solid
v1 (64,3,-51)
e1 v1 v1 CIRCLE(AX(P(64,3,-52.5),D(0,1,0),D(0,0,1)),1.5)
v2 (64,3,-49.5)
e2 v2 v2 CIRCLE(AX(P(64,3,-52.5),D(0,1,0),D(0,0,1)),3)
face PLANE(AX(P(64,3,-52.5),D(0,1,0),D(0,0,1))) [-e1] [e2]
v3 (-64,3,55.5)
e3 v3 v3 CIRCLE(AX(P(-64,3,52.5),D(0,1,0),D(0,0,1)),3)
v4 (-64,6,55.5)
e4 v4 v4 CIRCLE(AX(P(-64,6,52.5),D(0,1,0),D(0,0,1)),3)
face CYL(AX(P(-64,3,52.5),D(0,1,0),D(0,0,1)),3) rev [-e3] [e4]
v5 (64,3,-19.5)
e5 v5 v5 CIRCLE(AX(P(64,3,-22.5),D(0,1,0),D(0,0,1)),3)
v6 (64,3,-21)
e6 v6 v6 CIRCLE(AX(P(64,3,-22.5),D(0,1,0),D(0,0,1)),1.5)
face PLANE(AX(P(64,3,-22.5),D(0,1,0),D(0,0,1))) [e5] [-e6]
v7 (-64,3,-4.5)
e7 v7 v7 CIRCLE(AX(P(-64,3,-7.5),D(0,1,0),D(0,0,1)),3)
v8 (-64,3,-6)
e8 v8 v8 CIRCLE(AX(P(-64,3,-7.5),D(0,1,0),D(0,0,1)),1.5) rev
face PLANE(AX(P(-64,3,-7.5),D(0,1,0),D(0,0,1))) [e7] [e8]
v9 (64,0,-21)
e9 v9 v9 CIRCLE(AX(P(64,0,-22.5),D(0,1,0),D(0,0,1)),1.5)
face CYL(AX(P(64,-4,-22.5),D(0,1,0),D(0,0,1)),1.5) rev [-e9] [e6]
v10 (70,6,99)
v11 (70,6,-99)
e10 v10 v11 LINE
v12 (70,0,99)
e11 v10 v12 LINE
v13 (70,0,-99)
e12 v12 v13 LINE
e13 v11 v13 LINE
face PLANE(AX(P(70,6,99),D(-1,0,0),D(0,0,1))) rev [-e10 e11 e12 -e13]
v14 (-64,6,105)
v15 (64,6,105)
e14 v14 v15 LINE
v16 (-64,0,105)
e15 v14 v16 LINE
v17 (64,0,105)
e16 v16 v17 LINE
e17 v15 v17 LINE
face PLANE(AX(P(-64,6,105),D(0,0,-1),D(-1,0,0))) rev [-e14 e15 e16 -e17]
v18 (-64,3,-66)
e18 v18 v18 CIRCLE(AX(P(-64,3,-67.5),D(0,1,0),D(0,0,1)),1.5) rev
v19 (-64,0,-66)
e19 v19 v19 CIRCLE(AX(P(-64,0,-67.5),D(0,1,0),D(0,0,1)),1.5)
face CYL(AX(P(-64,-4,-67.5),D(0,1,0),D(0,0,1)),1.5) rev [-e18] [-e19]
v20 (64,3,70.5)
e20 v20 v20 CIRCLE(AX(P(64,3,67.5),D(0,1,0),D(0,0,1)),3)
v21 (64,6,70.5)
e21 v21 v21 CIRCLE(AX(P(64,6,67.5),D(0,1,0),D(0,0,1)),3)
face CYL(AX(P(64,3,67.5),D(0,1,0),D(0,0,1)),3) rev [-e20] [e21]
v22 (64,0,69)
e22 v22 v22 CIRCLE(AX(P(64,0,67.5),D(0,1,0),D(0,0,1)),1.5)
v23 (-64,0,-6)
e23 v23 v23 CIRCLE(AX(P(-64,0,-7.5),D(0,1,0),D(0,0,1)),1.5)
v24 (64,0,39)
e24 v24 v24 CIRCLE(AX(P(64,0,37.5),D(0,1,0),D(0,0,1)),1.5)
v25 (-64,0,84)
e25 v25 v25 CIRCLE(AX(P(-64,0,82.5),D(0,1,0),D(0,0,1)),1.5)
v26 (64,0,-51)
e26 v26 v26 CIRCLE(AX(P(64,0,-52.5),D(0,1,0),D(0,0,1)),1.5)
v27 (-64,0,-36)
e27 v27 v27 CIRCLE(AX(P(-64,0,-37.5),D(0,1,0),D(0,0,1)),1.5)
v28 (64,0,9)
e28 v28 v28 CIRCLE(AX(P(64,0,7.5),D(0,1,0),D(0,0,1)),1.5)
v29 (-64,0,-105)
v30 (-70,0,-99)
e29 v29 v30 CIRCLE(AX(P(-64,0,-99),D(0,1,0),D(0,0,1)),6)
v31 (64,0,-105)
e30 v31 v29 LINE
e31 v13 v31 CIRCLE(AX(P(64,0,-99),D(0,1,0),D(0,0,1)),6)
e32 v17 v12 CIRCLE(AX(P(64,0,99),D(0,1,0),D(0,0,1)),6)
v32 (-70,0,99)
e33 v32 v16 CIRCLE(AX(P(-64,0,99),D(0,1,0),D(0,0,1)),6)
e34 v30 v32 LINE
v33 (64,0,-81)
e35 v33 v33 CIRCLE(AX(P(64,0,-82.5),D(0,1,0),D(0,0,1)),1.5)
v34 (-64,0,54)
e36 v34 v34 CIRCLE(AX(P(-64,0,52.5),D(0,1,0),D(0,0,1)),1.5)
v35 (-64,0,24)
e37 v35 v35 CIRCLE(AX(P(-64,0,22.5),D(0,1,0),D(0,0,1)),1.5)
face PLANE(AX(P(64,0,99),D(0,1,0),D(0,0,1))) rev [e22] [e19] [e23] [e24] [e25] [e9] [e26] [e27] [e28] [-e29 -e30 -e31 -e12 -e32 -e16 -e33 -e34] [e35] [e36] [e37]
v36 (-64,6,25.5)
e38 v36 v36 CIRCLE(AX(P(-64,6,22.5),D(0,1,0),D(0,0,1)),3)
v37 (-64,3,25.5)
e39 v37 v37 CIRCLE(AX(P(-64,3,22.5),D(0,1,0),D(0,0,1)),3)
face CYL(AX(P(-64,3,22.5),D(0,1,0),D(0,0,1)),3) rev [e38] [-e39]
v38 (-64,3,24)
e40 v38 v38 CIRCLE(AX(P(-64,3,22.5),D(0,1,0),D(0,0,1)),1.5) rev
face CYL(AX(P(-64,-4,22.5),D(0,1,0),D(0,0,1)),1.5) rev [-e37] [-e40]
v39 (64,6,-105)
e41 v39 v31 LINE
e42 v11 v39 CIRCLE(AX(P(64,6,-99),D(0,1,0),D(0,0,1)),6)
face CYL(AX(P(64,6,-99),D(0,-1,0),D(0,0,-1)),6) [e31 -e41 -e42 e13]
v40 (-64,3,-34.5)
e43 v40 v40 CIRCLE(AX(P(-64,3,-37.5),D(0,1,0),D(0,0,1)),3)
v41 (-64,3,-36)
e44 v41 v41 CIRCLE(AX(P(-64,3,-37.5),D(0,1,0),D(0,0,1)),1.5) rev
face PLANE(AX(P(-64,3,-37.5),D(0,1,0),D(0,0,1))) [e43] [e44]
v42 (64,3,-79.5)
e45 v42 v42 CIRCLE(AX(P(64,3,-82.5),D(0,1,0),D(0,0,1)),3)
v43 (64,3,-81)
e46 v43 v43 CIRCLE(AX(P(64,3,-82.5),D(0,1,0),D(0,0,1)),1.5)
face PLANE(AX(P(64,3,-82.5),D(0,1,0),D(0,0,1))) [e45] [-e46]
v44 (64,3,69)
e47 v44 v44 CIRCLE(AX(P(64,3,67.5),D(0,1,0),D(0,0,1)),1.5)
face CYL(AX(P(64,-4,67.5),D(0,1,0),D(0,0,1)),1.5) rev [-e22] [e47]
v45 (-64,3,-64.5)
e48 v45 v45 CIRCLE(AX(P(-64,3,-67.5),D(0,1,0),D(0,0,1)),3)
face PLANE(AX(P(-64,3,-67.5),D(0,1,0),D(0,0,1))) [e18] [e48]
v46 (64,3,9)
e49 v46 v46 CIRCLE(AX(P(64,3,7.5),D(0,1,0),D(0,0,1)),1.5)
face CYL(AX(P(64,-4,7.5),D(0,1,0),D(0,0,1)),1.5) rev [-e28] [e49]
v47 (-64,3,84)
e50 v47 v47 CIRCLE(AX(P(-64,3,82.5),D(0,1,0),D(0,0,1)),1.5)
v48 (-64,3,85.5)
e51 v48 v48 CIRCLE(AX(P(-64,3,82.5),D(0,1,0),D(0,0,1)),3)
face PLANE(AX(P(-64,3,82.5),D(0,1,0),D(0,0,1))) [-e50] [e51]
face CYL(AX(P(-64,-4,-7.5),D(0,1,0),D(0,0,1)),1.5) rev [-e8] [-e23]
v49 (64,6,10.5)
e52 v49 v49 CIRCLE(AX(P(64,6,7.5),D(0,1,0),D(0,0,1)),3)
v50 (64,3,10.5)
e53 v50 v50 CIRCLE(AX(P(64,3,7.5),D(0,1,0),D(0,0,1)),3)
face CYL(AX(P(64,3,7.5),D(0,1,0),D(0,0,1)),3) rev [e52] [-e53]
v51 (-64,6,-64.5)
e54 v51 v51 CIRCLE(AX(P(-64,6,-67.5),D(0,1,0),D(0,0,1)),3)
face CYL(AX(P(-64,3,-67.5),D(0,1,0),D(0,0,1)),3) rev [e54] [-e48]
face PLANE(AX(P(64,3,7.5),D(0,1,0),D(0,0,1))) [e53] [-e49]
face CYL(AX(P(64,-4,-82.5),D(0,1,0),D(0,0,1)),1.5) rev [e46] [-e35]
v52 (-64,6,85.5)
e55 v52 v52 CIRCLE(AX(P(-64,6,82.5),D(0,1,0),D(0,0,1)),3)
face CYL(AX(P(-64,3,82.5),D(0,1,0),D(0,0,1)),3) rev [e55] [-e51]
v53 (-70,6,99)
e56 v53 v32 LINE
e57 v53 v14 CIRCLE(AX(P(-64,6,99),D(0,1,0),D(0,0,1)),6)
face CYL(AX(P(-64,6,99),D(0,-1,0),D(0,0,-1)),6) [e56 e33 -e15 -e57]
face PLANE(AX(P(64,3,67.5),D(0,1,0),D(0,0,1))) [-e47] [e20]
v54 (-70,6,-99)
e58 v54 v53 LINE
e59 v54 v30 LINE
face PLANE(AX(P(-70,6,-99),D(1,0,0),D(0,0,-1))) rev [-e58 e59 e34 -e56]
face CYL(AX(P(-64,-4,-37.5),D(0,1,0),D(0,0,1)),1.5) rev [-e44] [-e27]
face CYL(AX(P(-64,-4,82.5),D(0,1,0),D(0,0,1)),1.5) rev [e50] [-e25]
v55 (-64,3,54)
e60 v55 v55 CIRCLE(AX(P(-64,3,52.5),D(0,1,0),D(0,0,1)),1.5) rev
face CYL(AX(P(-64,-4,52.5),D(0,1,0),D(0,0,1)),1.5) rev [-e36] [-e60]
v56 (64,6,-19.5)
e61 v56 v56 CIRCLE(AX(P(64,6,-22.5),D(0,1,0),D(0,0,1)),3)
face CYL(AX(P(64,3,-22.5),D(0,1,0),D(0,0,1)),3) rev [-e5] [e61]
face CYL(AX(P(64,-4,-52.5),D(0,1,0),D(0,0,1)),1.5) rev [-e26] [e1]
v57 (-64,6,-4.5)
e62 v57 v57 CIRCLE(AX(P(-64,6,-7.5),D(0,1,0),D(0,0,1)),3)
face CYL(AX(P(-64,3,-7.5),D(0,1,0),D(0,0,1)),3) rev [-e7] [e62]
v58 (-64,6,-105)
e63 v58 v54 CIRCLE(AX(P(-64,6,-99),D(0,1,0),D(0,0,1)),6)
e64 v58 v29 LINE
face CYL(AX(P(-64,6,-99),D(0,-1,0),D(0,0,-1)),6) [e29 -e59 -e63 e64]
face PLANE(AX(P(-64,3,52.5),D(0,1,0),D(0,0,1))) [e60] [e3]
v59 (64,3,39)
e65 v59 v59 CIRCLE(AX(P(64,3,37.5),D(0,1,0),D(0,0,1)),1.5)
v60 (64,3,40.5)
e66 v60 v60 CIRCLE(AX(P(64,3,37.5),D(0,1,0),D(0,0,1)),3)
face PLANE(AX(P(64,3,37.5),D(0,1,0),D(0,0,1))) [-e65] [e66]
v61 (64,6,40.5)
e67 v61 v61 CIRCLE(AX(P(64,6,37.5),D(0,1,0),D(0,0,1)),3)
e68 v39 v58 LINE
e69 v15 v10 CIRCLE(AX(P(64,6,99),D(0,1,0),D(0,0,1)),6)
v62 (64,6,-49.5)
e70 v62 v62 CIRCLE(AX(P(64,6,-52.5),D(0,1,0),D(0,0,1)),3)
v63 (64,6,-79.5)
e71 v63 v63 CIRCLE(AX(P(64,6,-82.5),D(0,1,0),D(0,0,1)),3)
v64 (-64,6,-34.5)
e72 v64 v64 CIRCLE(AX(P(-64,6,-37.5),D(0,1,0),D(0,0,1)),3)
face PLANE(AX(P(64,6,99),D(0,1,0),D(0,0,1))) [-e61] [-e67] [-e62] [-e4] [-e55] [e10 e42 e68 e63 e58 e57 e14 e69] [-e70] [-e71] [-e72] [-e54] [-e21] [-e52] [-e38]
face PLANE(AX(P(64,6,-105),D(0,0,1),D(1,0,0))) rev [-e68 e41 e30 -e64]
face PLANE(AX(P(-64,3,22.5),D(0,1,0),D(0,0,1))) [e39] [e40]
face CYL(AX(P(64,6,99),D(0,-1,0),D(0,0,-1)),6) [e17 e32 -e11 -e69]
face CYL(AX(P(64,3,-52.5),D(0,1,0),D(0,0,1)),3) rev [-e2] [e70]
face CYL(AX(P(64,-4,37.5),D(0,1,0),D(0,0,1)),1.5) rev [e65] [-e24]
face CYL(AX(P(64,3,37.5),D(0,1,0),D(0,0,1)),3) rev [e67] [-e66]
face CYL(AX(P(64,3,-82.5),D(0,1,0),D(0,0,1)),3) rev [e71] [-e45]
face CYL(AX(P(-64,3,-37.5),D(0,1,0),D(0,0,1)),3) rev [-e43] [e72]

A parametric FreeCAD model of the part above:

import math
import FreeCAD as App
import Part
import Sketcher
Q = App.Units.Quantity

doc = App.newDocument("Part")
body = doc.addObject("PartDesign::Body", "Body")

# Sketch on XZ plane
sketch1 = doc.addObject("Sketcher::SketchObject", "Sketch")
body.addObject(sketch1)
sketch1.AttachmentSupport = (doc.XZ_Plane, [""])
sketch1.MapMode = "FlatFace"
sketch1.addGeometry([
    Part.LineSegment(App.Vector(70, 99, 0), App.Vector(70, -99, 0)),  # 0
    Part.ArcOfCircle(Part.Circle(App.Vector(64, -99, 0), App.Vector(0, 0, 1), 6), math.radians(-90), math.radians(0)),  # 1
    Part.LineSegment(App.Vector(64, -105, 0), App.Vector(-64, -105, 0)),  # 2
    Part.ArcOfCircle(Part.Circle(App.Vector(-64, -99, 0), App.Vector(0, 0, 1), 6), math.radians(180), math.radians(270)),  # 3
    Part.LineSegment(App.Vector(-70, -99, 0), App.Vector(-70, 99, 0)),  # 4
    Part.ArcOfCircle(Part.Circle(App.Vector(-64, 99, 0), App.Vector(0, 0, 1), 6), math.radians(90), math.radians(180)),  # 5
    Part.LineSegment(App.Vector(-64, 105, 0), App.Vector(64, 105, 0)),  # 6
    Part.ArcOfCircle(Part.Circle(App.Vector(64, 99, 0), App.Vector(0, 0, 1), 6), math.radians(0), math.radians(90)),  # 7
], False)
sketch1.addConstraint([
    Sketcher.Constraint("Tangent", 0, 2, 1, 2),
    Sketcher.Constraint("Tangent", 1, 1, 2, 1),
    Sketcher.Constraint("Tangent", 2, 2, 3, 2),
    Sketcher.Constraint("Tangent", 3, 1, 4, 1),
    Sketcher.Constraint("Tangent", 4, 2, 5, 2),
    Sketcher.Constraint("Tangent", 5, 1, 6, 1),
    Sketcher.Constraint("Tangent", 6, 2, 7, 2),
    Sketcher.Constraint("Tangent", 7, 1, 0, 1),
    Sketcher.Constraint("Vertical", 0),
    Sketcher.Constraint("Horizontal", 2),
    Sketcher.Constraint("Vertical", 4),
    Sketcher.Constraint("Horizontal", 6),
    Sketcher.Constraint("Equal", 1, 3),
    Sketcher.Constraint("Equal", 3, 5),
    Sketcher.Constraint("Equal", 5, 7),
    Sketcher.Constraint("Symmetric", 1, 3, 5, 3, -1, 1),
    Sketcher.Constraint("Radius", 1, Q("6 mm")),
    Sketcher.Constraint("DistanceX", 2, 2, 2, 1, Q("128 mm")),
    Sketcher.Constraint("DistanceY", 0, 2, 0, 1, Q("198 mm")),
])
pad1 = doc.addObject("PartDesign::Pad", "Pad")
body.addObject(pad1)
pad1.Profile = sketch1
pad1.Length = 6
pad1.Reversed = True

# Sketch on XZ plane
sketch2 = doc.addObject("Sketcher::SketchObject", "Sketch001")
body.addObject(sketch2)
sketch2.AttachmentSupport = (doc.XZ_Plane, [""])
sketch2.MapMode = "FlatFace"
sketch2.AttachmentOffset = App.Placement(App.Vector(0, 0, -6), App.Rotation())
sketch2.addGeometry([
    Part.Circle(App.Vector(-64, 82.5, 0), App.Vector(0, 0, 1), 1.5),  # 0
    Part.Circle(App.Vector(-64, 52.5, 0), App.Vector(0, 0, 1), 1.5),  # 1
    Part.Circle(App.Vector(-64, 22.5, 0), App.Vector(0, 0, 1), 1.5),  # 2
    Part.Circle(App.Vector(-64, -7.5, 0), App.Vector(0, 0, 1), 1.5),  # 3
    Part.Circle(App.Vector(-64, -37.5, 0), App.Vector(0, 0, 1), 1.5),  # 4
    Part.Circle(App.Vector(-64, -67.5, 0), App.Vector(0, 0, 1), 1.5),  # 5
    Part.Circle(App.Vector(64, 67.5, 0), App.Vector(0, 0, 1), 1.5),  # 6
    Part.Circle(App.Vector(64, 37.5, 0), App.Vector(0, 0, 1), 1.5),  # 7
    Part.Circle(App.Vector(64, 7.5, 0), App.Vector(0, 0, 1), 1.5),  # 8
    Part.Circle(App.Vector(64, -22.5, 0), App.Vector(0, 0, 1), 1.5),  # 9
    Part.Circle(App.Vector(64, -52.5, 0), App.Vector(0, 0, 1), 1.5),  # 10
    Part.Circle(App.Vector(64, -82.5, 0), App.Vector(0, 0, 1), 1.5),  # 11
], False)
sketch2.addConstraint([
    Sketcher.Constraint("Equal", 0, 1),
    Sketcher.Constraint("Equal", 1, 2),
    Sketcher.Constraint("Equal", 2, 3),
    Sketcher.Constraint("Equal", 3, 4),
    Sketcher.Constraint("Equal", 4, 5),
    Sketcher.Constraint("Equal", 5, 6),
    Sketcher.Constraint("Equal", 6, 7),
    Sketcher.Constraint("Equal", 7, 8),
    Sketcher.Constraint("Equal", 8, 9),
    Sketcher.Constraint("Equal", 9, 10),
    Sketcher.Constraint("Equal", 10, 11),
    Sketcher.Constraint("Symmetric", 5, 3, 6, 3, -1, 1),
    Sketcher.Constraint("Symmetric", 4, 3, 7, 3, -1, 1),
    Sketcher.Constraint("Symmetric", 3, 3, 8, 3, -1, 1),
    Sketcher.Constraint("Symmetric", 2, 3, 9, 3, -1, 1),
    Sketcher.Constraint("Symmetric", 1, 3, 10, 3, -1, 1),
    Sketcher.Constraint("Symmetric", 0, 3, 11, 3, -1, 1),
    Sketcher.Constraint("Vertical", 0, 3, 1, 3),
    Sketcher.Constraint("Vertical", 1, 3, 2, 3),
    Sketcher.Constraint("Vertical", 2, 3, 3, 3),
    Sketcher.Constraint("Vertical", 3, 3, 4, 3),
    Sketcher.Constraint("Vertical", 4, 3, 5, 3),
    Sketcher.Constraint("Diameter", 0, Q("3 mm")),
    Sketcher.Constraint("DistanceX", 0, 3, -1, 1, Q("64 mm")),
    Sketcher.Constraint("DistanceY", 1, 3, 0, 3, Q("30 mm")),
    Sketcher.Constraint("DistanceY", 2, 3, 1, 3, Q("30 mm")),
    Sketcher.Constraint("DistanceY", 3, 3, 2, 3, Q("30 mm")),
    Sketcher.Constraint("DistanceY", 4, 3, 3, 3, Q("30 mm")),
    Sketcher.Constraint("DistanceY", 5, 3, 4, 3, Q("30 mm")),
    Sketcher.Constraint("DistanceY", 6, 3, 0, 3, Q("15 mm")),
])
pocket1 = doc.addObject("PartDesign::Pocket", "Pocket")
body.addObject(pocket1)
pocket1.Profile = sketch2
pocket1.Length = 10
pocket1.Reversed = True

# Sketch on XZ plane
sketch3 = doc.addObject("Sketcher::SketchObject", "Sketch002")
body.addObject(sketch3)
sketch3.AttachmentSupport = (doc.XZ_Plane, [""])
sketch3.MapMode = "FlatFace"
sketch3.AttachmentOffset = App.Placement(App.Vector(0, 0, -6), App.Rotation())
sketch3.addGeometry([
    Part.Circle(App.Vector(-64, 82.5, 0), App.Vector(0, 0, 1), 3),  # 0
    Part.Circle(App.Vector(-64, 82.5, 0), App.Vector(0, 0, 1), 1.5),  # 1
    Part.Circle(App.Vector(-64, 52.5, 0), App.Vector(0, 0, 1), 3),  # 2
    Part.Circle(App.Vector(-64, 22.5, 0), App.Vector(0, 0, 1), 3),  # 3
    Part.Circle(App.Vector(-64, -7.5, 0), App.Vector(0, 0, 1), 3),  # 4
    Part.Circle(App.Vector(-64, -37.5, 0), App.Vector(0, 0, 1), 3),  # 5
    Part.Circle(App.Vector(-64, -67.5, 0), App.Vector(0, 0, 1), 3),  # 6
    Part.Circle(App.Vector(64, 67.5, 0), App.Vector(0, 0, 1), 3),  # 7
    Part.Circle(App.Vector(64, 67.5, 0), App.Vector(0, 0, 1), 1.5),  # 8
    Part.Circle(App.Vector(64, 37.5, 0), App.Vector(0, 0, 1), 3),  # 9
    Part.Circle(App.Vector(64, 37.5, 0), App.Vector(0, 0, 1), 1.5),  # 10
    Part.Circle(App.Vector(64, 7.5, 0), App.Vector(0, 0, 1), 3),  # 11
    Part.Circle(App.Vector(64, 7.5, 0), App.Vector(0, 0, 1), 1.5),  # 12
    Part.Circle(App.Vector(64, -22.5, 0), App.Vector(0, 0, 1), 3),  # 13
    Part.Circle(App.Vector(64, -22.5, 0), App.Vector(0, 0, 1), 1.5),  # 14
    Part.Circle(App.Vector(64, -52.5, 0), App.Vector(0, 0, 1), 3),  # 15
    Part.Circle(App.Vector(64, -52.5, 0), App.Vector(0, 0, 1), 1.5),  # 16
    Part.Circle(App.Vector(64, -82.5, 0), App.Vector(0, 0, 1), 3),  # 17
    Part.Circle(App.Vector(64, -82.5, 0), App.Vector(0, 0, 1), 1.5),  # 18
], False)
sketch3.addConstraint([
    Sketcher.Constraint("Coincident", 1, 3, 0, 3),
    Sketcher.Constraint("Coincident", 8, 3, 7, 3),
    Sketcher.Constraint("Coincident", 10, 3, 9, 3),
    Sketcher.Constraint("Coincident", 12, 3, 11, 3),
    Sketcher.Constraint("Coincident", 14, 3, 13, 3),
    Sketcher.Constraint("Coincident", 16, 3, 15, 3),
    Sketcher.Constraint("Coincident", 18, 3, 17, 3),
    Sketcher.Constraint("Equal", 0, 2),
    Sketcher.Constraint("Equal", 2, 3),
    Sketcher.Constraint("Equal", 3, 4),
    Sketcher.Constraint("Equal", 4, 5),
    Sketcher.Constraint("Equal", 5, 6),
    Sketcher.Constraint("Equal", 6, 7),
    Sketcher.Constraint("Equal", 1, 8),
    Sketcher.Constraint("Equal", 7, 9),
    Sketcher.Constraint("Equal", 8, 10),
    Sketcher.Constraint("Equal", 9, 11),
    Sketcher.Constraint("Equal", 10, 12),
    Sketcher.Constraint("Equal", 11, 13),
    Sketcher.Constraint("Equal", 12, 14),
    Sketcher.Constraint("Equal", 13, 15),
    Sketcher.Constraint("Equal", 14, 16),
    Sketcher.Constraint("Equal", 15, 17),
    Sketcher.Constraint("Equal", 16, 18),
    Sketcher.Constraint("Symmetric", 6, 3, 7, 3, -1, 1),
    Sketcher.Constraint("Symmetric", 5, 3, 9, 3, -1, 1),
    Sketcher.Constraint("Symmetric", 4, 3, 11, 3, -1, 1),
    Sketcher.Constraint("Symmetric", 3, 3, 13, 3, -1, 1),
    Sketcher.Constraint("Symmetric", 2, 3, 15, 3, -1, 1),
    Sketcher.Constraint("Symmetric", 0, 3, 17, 3, -1, 1),
    Sketcher.Constraint("Vertical", 1, 3, 2, 3),
    Sketcher.Constraint("Vertical", 2, 3, 3, 3),
    Sketcher.Constraint("Vertical", 3, 3, 4, 3),
    Sketcher.Constraint("Vertical", 4, 3, 5, 3),
    Sketcher.Constraint("Vertical", 5, 3, 6, 3),
    Sketcher.Constraint("Diameter", 0, Q("6 mm")),
    Sketcher.Constraint("Diameter", 1, Q("3 mm")),
    Sketcher.Constraint("DistanceX", 0, 3, -1, 1, Q("64 mm")),
    Sketcher.Constraint("DistanceY", 2, 3, 0, 3, Q("30 mm")),
    Sketcher.Constraint("DistanceY", 3, 3, 2, 3, Q("30 mm")),
    Sketcher.Constraint("DistanceY", 4, 3, 3, 3, Q("30 mm")),
    Sketcher.Constraint("DistanceY", 5, 3, 4, 3, Q("30 mm")),
    Sketcher.Constraint("DistanceY", 6, 3, 5, 3, Q("30 mm")),
    Sketcher.Constraint("DistanceY", 7, 3, 0, 3, Q("15 mm")),
])
pocket2 = doc.addObject("PartDesign::Pocket", "Pocket001")
body.addObject(pocket2)
pocket2.Profile = sketch3
pocket2.Length = 3
pocket2.Reversed = True

doc.recompute()
